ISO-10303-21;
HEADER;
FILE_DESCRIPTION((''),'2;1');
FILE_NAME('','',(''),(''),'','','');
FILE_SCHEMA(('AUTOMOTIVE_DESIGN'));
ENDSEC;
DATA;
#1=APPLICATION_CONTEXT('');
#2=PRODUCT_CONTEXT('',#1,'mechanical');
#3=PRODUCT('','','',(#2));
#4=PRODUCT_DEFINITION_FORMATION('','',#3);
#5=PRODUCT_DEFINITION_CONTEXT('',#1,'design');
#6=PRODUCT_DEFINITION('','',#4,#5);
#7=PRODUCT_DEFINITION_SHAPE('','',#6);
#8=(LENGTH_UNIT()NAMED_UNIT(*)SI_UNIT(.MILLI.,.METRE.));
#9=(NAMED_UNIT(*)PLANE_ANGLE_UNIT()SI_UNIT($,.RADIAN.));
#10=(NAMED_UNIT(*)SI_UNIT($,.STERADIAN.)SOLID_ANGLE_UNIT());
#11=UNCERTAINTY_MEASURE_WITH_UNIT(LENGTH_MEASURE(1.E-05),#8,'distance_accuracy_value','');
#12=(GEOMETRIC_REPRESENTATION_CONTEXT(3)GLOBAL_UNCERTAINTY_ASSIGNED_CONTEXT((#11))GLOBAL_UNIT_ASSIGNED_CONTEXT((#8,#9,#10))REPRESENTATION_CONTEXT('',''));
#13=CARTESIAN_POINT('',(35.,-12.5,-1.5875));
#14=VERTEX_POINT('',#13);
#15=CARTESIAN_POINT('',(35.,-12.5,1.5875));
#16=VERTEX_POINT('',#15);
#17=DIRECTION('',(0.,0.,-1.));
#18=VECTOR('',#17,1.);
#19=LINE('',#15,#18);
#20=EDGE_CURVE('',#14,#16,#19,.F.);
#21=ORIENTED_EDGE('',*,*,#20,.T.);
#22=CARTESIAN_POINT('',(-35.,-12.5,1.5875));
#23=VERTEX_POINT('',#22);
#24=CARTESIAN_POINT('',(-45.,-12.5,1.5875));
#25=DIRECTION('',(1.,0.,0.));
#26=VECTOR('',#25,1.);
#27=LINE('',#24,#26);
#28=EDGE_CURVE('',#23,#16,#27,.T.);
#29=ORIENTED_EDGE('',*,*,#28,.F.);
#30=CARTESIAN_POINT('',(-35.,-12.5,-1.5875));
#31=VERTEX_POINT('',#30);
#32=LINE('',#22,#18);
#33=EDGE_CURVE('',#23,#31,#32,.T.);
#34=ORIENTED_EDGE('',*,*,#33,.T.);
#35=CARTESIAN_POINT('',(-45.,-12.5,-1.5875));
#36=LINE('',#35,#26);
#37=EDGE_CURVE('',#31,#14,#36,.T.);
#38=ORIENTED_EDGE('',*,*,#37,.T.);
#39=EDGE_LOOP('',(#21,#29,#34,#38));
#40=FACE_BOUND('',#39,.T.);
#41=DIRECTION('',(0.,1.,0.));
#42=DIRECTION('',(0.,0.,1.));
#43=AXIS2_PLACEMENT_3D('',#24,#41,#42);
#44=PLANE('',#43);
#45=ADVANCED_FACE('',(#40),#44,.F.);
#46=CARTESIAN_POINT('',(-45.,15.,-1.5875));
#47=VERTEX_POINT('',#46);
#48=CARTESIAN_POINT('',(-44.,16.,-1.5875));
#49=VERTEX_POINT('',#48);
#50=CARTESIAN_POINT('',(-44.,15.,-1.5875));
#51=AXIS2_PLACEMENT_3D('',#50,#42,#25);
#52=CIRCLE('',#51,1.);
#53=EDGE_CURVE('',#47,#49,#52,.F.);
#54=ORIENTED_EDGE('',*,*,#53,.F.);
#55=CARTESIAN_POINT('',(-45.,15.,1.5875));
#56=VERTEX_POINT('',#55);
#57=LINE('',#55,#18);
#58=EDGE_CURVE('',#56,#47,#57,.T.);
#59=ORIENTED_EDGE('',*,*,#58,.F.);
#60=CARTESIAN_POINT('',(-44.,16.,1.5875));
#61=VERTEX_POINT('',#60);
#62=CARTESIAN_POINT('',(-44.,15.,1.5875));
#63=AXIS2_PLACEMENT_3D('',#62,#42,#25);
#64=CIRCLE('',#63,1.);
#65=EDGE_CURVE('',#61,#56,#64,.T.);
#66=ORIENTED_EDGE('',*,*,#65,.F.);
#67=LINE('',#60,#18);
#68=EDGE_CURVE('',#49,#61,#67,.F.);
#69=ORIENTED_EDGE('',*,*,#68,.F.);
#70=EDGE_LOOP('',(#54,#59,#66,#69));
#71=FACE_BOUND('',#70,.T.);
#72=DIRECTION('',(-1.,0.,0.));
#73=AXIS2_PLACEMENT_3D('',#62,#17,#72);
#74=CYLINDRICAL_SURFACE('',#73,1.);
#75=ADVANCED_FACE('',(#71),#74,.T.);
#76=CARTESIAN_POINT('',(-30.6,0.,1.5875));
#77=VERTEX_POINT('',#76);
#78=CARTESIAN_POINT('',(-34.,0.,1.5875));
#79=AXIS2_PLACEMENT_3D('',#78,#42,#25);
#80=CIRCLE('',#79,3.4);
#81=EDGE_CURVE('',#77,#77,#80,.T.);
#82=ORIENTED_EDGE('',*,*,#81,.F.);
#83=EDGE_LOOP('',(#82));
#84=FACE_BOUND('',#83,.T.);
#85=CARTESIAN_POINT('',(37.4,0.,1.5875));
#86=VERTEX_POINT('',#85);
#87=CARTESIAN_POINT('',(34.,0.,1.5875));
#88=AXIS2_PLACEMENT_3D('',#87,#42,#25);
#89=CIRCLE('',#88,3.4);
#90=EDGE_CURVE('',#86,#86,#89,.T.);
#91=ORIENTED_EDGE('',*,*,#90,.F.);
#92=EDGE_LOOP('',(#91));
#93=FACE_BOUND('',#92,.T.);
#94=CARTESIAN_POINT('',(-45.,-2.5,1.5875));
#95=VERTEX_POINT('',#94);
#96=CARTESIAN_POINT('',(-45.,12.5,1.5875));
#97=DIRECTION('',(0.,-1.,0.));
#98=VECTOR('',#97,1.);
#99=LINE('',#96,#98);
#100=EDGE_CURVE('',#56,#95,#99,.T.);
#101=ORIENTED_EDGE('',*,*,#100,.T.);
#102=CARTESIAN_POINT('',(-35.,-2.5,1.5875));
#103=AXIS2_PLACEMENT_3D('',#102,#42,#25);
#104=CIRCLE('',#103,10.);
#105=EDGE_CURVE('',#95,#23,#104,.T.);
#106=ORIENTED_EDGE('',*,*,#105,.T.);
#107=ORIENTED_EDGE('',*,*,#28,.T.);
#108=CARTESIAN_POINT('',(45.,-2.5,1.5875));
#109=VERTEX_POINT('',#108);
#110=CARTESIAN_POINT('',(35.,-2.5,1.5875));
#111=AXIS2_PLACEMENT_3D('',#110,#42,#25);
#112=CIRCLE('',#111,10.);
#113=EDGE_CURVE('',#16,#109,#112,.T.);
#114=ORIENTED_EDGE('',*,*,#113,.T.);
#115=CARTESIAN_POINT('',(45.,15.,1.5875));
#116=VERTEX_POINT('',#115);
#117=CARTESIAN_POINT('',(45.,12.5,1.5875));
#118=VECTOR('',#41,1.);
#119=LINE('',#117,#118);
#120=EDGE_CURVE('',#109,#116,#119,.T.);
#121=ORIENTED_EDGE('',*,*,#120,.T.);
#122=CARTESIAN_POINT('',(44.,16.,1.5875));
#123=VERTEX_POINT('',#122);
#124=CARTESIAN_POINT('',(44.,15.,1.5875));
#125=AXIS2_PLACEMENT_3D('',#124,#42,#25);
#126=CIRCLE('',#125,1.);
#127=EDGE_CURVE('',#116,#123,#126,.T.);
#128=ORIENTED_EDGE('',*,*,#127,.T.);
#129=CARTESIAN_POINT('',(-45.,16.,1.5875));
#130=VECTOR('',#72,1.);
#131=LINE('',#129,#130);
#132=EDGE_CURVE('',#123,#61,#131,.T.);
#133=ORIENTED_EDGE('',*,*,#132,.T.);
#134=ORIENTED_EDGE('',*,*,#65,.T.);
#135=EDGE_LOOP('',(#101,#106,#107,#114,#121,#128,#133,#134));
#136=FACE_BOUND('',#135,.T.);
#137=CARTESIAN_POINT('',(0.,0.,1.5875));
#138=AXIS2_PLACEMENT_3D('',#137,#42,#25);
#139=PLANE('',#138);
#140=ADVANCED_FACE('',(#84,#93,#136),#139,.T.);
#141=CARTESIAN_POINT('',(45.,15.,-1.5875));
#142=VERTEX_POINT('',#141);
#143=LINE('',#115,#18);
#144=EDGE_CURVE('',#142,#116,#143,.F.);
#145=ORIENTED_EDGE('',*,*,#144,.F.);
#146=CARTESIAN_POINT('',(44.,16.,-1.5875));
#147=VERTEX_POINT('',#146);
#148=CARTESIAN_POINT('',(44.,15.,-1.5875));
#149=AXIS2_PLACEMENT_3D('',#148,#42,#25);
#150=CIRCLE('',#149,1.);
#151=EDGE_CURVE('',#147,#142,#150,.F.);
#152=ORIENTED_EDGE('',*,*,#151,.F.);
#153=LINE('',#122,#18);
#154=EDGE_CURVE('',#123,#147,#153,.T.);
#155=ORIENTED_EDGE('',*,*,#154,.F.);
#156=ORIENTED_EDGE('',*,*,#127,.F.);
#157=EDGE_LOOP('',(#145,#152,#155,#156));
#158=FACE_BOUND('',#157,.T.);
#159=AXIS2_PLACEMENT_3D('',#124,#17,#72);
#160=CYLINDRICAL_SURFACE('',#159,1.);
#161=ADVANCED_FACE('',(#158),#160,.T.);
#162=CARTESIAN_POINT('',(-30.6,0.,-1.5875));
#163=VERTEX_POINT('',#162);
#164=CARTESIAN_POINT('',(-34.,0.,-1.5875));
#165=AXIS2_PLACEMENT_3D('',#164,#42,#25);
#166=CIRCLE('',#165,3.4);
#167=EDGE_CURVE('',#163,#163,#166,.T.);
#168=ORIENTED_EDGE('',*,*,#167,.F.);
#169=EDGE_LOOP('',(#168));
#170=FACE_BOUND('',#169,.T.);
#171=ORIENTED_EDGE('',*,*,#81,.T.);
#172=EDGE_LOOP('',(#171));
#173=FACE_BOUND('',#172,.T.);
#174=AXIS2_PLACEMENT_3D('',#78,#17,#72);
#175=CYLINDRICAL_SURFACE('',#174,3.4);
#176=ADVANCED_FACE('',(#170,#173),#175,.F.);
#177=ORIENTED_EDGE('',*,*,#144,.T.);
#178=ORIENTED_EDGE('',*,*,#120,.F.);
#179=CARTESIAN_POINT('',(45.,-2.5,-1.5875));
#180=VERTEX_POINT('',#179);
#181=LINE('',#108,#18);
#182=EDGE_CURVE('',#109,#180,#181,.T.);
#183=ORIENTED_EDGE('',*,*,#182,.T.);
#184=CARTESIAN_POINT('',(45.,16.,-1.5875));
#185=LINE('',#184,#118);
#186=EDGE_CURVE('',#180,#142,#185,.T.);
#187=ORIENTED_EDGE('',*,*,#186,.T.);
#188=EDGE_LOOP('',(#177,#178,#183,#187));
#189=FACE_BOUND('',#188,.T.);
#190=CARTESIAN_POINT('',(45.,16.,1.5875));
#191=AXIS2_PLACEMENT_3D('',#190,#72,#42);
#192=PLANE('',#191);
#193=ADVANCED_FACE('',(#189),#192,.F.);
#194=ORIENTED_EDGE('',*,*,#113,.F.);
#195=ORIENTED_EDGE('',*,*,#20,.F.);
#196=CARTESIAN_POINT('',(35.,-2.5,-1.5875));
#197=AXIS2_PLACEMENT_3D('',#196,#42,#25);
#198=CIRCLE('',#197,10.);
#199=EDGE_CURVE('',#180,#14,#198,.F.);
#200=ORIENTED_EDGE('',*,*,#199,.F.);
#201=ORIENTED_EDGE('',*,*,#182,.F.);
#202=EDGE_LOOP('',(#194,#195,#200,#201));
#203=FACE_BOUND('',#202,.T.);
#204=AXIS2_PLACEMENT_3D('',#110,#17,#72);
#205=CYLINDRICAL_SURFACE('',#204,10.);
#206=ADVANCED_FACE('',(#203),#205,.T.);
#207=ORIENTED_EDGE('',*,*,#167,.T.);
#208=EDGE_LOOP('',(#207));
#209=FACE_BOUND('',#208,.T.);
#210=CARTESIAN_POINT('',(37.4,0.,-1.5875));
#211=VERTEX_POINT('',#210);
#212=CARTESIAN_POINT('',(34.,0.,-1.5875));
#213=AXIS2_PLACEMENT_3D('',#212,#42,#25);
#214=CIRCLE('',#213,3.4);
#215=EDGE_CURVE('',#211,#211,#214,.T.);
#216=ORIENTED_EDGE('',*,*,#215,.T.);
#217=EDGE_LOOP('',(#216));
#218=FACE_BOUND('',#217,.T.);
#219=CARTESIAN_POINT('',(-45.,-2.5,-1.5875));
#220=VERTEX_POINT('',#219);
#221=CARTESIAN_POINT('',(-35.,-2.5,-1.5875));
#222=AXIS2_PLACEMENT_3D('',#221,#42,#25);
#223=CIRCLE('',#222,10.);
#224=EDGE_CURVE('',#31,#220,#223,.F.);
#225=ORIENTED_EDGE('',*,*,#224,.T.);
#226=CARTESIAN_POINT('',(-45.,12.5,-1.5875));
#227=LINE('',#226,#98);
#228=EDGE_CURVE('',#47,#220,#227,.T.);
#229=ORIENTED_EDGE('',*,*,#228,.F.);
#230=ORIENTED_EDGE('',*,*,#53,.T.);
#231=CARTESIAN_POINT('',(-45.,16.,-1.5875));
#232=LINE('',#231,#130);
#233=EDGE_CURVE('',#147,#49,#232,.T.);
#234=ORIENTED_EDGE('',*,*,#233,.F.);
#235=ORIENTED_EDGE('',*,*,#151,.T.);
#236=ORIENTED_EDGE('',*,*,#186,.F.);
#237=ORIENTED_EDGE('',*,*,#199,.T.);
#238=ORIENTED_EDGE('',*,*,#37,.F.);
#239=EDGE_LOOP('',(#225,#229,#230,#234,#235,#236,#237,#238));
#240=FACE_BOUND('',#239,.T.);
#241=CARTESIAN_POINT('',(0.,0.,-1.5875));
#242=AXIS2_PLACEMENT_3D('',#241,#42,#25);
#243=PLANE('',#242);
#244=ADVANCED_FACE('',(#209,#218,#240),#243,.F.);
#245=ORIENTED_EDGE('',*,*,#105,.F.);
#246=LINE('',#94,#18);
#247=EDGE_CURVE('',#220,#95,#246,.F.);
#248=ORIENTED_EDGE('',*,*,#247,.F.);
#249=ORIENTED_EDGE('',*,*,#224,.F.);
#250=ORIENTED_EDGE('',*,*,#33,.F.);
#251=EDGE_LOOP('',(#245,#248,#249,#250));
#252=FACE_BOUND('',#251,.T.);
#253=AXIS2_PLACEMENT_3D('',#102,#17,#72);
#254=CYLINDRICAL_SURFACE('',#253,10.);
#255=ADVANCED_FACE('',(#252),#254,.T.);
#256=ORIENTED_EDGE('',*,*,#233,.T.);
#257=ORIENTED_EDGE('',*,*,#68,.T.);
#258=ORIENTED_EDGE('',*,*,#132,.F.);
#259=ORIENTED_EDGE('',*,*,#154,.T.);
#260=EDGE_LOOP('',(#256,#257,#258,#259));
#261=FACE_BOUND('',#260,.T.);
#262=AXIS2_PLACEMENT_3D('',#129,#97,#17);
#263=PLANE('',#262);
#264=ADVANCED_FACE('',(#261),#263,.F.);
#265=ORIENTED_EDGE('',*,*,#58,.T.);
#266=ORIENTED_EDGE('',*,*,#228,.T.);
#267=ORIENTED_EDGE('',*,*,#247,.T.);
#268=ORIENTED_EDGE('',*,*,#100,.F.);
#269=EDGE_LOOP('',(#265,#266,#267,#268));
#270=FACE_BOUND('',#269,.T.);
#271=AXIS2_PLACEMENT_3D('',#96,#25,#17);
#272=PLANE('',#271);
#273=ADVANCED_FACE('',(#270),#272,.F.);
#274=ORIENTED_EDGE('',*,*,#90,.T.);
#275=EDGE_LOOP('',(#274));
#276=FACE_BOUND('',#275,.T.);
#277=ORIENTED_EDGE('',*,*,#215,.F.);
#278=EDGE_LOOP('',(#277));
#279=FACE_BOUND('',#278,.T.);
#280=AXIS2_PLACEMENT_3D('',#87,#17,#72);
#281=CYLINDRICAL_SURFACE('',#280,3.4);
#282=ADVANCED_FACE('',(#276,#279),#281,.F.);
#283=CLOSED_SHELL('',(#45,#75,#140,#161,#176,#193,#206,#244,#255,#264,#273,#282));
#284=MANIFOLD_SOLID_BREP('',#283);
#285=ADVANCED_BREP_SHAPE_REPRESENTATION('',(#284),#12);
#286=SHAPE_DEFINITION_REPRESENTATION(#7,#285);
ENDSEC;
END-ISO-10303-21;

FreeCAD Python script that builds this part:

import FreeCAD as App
import Part
import Sketcher

V = App.Vector


def edges_at(feature, points):
    """Names of the edges that pass closest to the given points."""
    edges = feature.Shape.Edges
    near = lambda p: min(range(len(edges)), key=lambda i: edges[i].distToShape(Part.Vertex(*p))[0])
    return sorted({f"Edge{near(p) + 1}" for p in points})

doc = App.newDocument("Part")
body = doc.addObject("PartDesign::Body", "Body")

sketch1 = body.newObject("Sketcher::SketchObject", "Sketch")
sketch1.AttachmentSupport = (doc.getObject("XY_Plane"), [""])
sketch1.MapMode = "FlatFace"
sketch1.addGeometry([
    Part.LineSegment(V(-45, 16, 0), V(-45, -12.5, 0)),
    Part.LineSegment(V(-45, -12.5, 0), V(45, -12.5, 0)),
    Part.LineSegment(V(45, -12.5, 0), V(45, 16, 0)),
    Part.LineSegment(V(45, 16, 0), V(-45, 16, 0)),
    Part.Circle(V(34, 0, 0), V(0, 0, 1), 3.4),
    Part.Circle(V(-34, 0, 0), V(0, 0, 1), 3.4),
], False)
sketch1.addConstraint([
    Sketcher.Constraint("Coincident", 0, 2, 1, 1),
    Sketcher.Constraint("Coincident", 1, 2, 2, 1),
    Sketcher.Constraint("Coincident", 2, 2, 3, 1),
    Sketcher.Constraint("Coincident", 3, 2, 0, 1),
    Sketcher.Constraint("Vertical", 0),
    Sketcher.Constraint("Horizontal", 1),
    Sketcher.Constraint("Vertical", 2),
    Sketcher.Constraint("Horizontal", 3),
    Sketcher.Constraint("Equal", 4, 5),
    Sketcher.Constraint("Symmetric", 4, 3, 5, 3, -1, 1),
    Sketcher.Constraint("PointOnObject", 4, 3, -1),
    Sketcher.Constraint("Diameter", 4, 6.8),
    Sketcher.Constraint("DistanceX", 1, 1, 1, 2, 90.0),
    Sketcher.Constraint("DistanceY", 0, 2, 0, 1, 28.5),
    Sketcher.Constraint("DistanceX", -1, 1, 4, 3, 34.0),
    Sketcher.Constraint("DistanceX", 0, 2, -1, 1, 45.0),
    Sketcher.Constraint("DistanceY", -1, 1, 2, 2, 16.0),
])
pad1 = body.newObject("PartDesign::Pad", "Pad")
pad1.Profile = sketch1
pad1.Length = 3.175
pad1.Midplane = True
doc.recompute()

fillet = body.newObject("PartDesign::Fillet", "Fillet")
fillet.Base = (pad1, edges_at(pad1, [(45, -12.5, 0), (-45, -12.5, 0)]))
fillet.Radius = 10
doc.recompute()

fillet2 = body.newObject("PartDesign::Fillet", "Fillet001")
fillet2.Base = (fillet, edges_at(fillet, [(-45, 16, 0), (45, 16, 0)]))
fillet2.Radius = 1

doc.recompute()
